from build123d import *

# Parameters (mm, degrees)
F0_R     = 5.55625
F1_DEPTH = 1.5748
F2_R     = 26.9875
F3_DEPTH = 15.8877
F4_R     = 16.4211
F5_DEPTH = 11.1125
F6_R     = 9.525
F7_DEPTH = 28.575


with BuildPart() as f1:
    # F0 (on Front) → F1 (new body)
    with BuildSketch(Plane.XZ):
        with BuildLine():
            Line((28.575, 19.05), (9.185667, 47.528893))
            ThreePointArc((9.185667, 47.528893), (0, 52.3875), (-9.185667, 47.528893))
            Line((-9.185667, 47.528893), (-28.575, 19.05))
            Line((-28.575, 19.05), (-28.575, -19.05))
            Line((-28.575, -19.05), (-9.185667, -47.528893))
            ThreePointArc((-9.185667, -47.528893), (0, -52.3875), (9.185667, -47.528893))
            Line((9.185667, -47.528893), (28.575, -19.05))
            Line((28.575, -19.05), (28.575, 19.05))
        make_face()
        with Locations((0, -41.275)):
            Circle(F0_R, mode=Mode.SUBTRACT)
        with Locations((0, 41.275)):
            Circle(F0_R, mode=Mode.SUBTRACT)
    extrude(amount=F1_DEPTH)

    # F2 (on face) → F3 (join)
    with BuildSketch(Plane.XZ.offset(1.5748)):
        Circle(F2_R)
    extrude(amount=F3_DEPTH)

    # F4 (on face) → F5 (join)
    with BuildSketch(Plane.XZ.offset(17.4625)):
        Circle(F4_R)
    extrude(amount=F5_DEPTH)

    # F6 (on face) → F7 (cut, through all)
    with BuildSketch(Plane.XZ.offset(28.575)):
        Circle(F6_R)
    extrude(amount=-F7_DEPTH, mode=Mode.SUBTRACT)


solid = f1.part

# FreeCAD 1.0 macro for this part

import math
import FreeCAD as App
import Part
import Sketcher
from FreeCAD import Vector
Q = App.Units.Quantity

doc = App.newDocument("Part")
body = doc.addObject("PartDesign::Body", "Body")

# Sketch on XZ plane
sketch1 = doc.addObject("Sketcher::SketchObject", "Sketch")
body.addObject(sketch1)
sketch1.AttachmentSupport = (doc.XZ_Plane, [""])
sketch1.MapMode = "FlatFace"
sketch1.addGeometry(Part.LineSegment(Vector(29, 19, 0), Vector(9, 48, 0)), False)
sketch1.addGeometry(Part.ArcOfCircle(Part.Circle(Vector(0, 41, 0), Vector(0, 0, 1), 11), math.radians(34), math.radians(146)), False)
sketch1.addGeometry(Part.LineSegment(Vector(-9, 48, 0), Vector(-29, 19, 0)), False)
sketch1.addGeometry(Part.LineSegment(Vector(-29, 19, 0), Vector(-29, -19, 0)), False)
sketch1.addGeometry(Part.LineSegment(Vector(-29, -19, 0), Vector(-9, -48, 0)), False)
sketch1.addGeometry(Part.ArcOfCircle(Part.Circle(Vector(0, -41, 0), Vector(0, 0, 1), 11), math.radians(-146), math.radians(-34)), False)
sketch1.addGeometry(Part.LineSegment(Vector(9, -48, 0), Vector(29, -19, 0)), False)
sketch1.addGeometry(Part.LineSegment(Vector(29, -19, 0), Vector(29, 19, 0)), False)
sketch1.addGeometry(Part.Circle(Vector(0, -41, 0), Vector(0, 0, 1), 6), False)
sketch1.addGeometry(Part.Circle(Vector(0, 41, 0), Vector(0, 0, 1), 6), False)
sketch1.addConstraint(Sketcher.Constraint("Tangent", 0, 2, 1, 1))
sketch1.addConstraint(Sketcher.Constraint("Tangent", 1, 2, 2, 1))
sketch1.addConstraint(Sketcher.Constraint("Coincident", 2, 2, 3, 1))
sketch1.addConstraint(Sketcher.Constraint("Coincident", 3, 2, 4, 1))
sketch1.addConstraint(Sketcher.Constraint("Tangent", 4, 2, 5, 1))
sketch1.addConstraint(Sketcher.Constraint("Tangent", 5, 2, 6, 1))
sketch1.addConstraint(Sketcher.Constraint("Coincident", 6, 2, 7, 1))
sketch1.addConstraint(Sketcher.Constraint("Coincident", 7, 2, 0, 1))
sketch1.addConstraint(Sketcher.Constraint("Vertical", 3))
sketch1.addConstraint(Sketcher.Constraint("Vertical", 7))
sketch1.addConstraint(Sketcher.Constraint("Coincident", 8, 3, 5, 3))
sketch1.addConstraint(Sketcher.Constraint("Coincident", 9, 3, 1, 3))
sketch1.addConstraint(Sketcher.Constraint("Equal", 1, 5))
sketch1.addConstraint(Sketcher.Constraint("Equal", 8, 9))
sketch1.addConstraint(Sketcher.Constraint("Symmetric", 1, 3, 5, 3, -1, 1))
sketch1.addConstraint(Sketcher.Constraint("Symmetric", 2, 2, 6, 2, -1, 1))
sketch1.addConstraint(Sketcher.Constraint("Symmetric", 0, 2, 1, 2, -2))
sketch1.addConstraint(Sketcher.Constraint("Parallel", 0, 4))
sketch1.addConstraint(Sketcher.Constraint("Diameter", 8, Q("0.4375 in")))
sketch1.addConstraint(Sketcher.Constraint("DistanceY", 3, 2, 3, 1, Q("1.5 in")))
sketch1.addConstraint(Sketcher.Constraint("Radius", 1, Q("0.4375 in")))
sketch1.addConstraint(Sketcher.Constraint("DistanceY", 5, 3, 1, 3, Q("3.25 in")))
sketch1.addConstraint(Sketcher.Constraint("DistanceX", 3, 2, 6, 2, Q("2.25 in")))
pad1 = doc.addObject("PartDesign::Pad", "Pad")
body.addObject(pad1)
pad1.Profile = sketch1
pad1.Length = Q("0.062 in")

# Sketch on XZ plane
sketch2 = doc.addObject("Sketcher::SketchObject", "Sketch001")
body.addObject(sketch2)
sketch2.AttachmentSupport = (doc.XZ_Plane, [""])
sketch2.MapMode = "FlatFace"
sketch2.AttachmentOffset = App.Placement(Vector(0, 0, 0.062 * 25.4), App.Rotation())
sketch2.addGeometry(Part.Circle(Vector(0, 0, 0), Vector(0, 0, 1), 27), False)
sketch2.addConstraint(Sketcher.Constraint("Coincident", 0, 3, -1, 1))
sketch2.addConstraint(Sketcher.Constraint("Diameter", 0, Q("2.125 in")))
pad2 = doc.addObject("PartDesign::Pad", "Pad001")
body.addObject(pad2)
pad2.Profile = sketch2
pad2.Length = Q("0.6255 in")

# Sketch on XZ plane
sketch3 = doc.addObject("Sketcher::SketchObject", "Sketch002")
body.addObject(sketch3)
sketch3.AttachmentSupport = (doc.XZ_Plane, [""])
sketch3.MapMode = "FlatFace"
sketch3.AttachmentOffset = App.Placement(Vector(0, 0, 0.6875 * 25.4), App.Rotation())
sketch3.addGeometry(Part.Circle(Vector(0, 0, 0), Vector(0, 0, 1), 16), False)
sketch3.addConstraint(Sketcher.Constraint("Coincident", 0, 3, -1, 1))
sketch3.addConstraint(Sketcher.Constraint("Diameter", 0, Q("1.293 in")))
pad3 = doc.addObject("PartDesign::Pad", "Pad002")
body.addObject(pad3)
pad3.Profile = sketch3
pad3.Length = Q("0.4375 in")

# Sketch on XZ plane
sketch4 = doc.addObject("Sketcher::SketchObject", "Sketch003")
body.addObject(sketch4)
sketch4.AttachmentSupport = (doc.XZ_Plane, [""])
sketch4.MapMode = "FlatFace"
sketch4.AttachmentOffset = App.Placement(Vector(0, 0, 1.125 * 25.4), App.Rotation())
sketch4.addGeometry(Part.Circle(Vector(0, 0, 0), Vector(0, 0, 1), 10), False)
sketch4.addConstraint(Sketcher.Constraint("Coincident", 0, 3, -1, 1))
sketch4.addConstraint(Sketcher.Constraint("Diameter", 0, Q("0.75 in")))
pocket1 = doc.addObject("PartDesign::Pocket", "Pocket")
body.addObject(pocket1)
pocket1.Profile = sketch4
pocket1.Type = "ThroughAll"

doc.recompute()
